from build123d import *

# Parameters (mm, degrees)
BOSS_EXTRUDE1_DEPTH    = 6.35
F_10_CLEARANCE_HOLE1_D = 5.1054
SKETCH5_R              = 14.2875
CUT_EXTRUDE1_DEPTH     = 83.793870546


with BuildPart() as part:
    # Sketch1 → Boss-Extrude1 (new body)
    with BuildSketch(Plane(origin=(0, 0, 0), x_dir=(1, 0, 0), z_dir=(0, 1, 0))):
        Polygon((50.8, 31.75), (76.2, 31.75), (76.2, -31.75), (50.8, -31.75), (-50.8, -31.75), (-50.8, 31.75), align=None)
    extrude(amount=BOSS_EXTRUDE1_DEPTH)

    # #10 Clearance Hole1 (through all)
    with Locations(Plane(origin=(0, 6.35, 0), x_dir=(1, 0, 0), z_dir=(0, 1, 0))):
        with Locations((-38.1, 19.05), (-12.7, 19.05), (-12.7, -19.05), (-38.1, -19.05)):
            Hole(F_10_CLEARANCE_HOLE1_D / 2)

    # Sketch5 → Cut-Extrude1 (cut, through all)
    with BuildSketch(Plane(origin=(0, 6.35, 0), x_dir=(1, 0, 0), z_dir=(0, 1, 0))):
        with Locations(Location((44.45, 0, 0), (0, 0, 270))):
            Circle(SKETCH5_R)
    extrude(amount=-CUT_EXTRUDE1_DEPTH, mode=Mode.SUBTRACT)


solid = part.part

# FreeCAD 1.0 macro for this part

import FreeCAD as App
import Part
import Sketcher

V = App.Vector
Q = App.Units.Quantity

doc = App.newDocument("Part")
body = doc.addObject("PartDesign::Body", "Body")

# Sketch on XZ plane
sketch1 = body.newObject("Sketcher::SketchObject", "Sketch")
sketch1.AttachmentSupport = (doc.getObject("XZ_Plane"), [""])
sketch1.MapMode = "FlatFace"
sketch1.addGeometry(Part.LineSegment(V(76.2, -31.75, 0), V(-50.8, -31.75, 0)), False)
sketch1.addGeometry(Part.LineSegment(V(-50.8, -31.75, 0), V(-50.8, 31.75, 0)), False)
sketch1.addGeometry(Part.LineSegment(V(-50.8, 31.75, 0), V(76.2, 31.75, 0)), False)
sketch1.addGeometry(Part.LineSegment(V(76.2, 31.75, 0), V(76.2, -31.75, 0)), False)
sketch1.addConstraint(Sketcher.Constraint("Coincident", 0, 2, 1, 1))
sketch1.addConstraint(Sketcher.Constraint("Coincident", 1, 2, 2, 1))
sketch1.addConstraint(Sketcher.Constraint("Coincident", 2, 2, 3, 1))
sketch1.addConstraint(Sketcher.Constraint("Coincident", 3, 2, 0, 1))
sketch1.addConstraint(Sketcher.Constraint("Horizontal", 0))
sketch1.addConstraint(Sketcher.Constraint("Vertical", 1))
sketch1.addConstraint(Sketcher.Constraint("Horizontal", 2))
sketch1.addConstraint(Sketcher.Constraint("Vertical", 3))
sketch1.addConstraint(Sketcher.Constraint("DistanceX", 0, 2, 0, 1, Q("5 in")))
sketch1.addConstraint(Sketcher.Constraint("DistanceY", 1, 1, 1, 2, Q("2.5 in")))
sketch1.addConstraint(Sketcher.Constraint("DistanceX", 0, 2, -1, 1, Q("2 in")))
sketch1.addConstraint(Sketcher.Constraint("DistanceY", 0, 2, -1, 1, Q("1.25 in")))
pad1 = body.newObject("PartDesign::Pad", "Pad")
pad1.Profile = sketch1
pad1.Length = Q("0.25 in")
pad1.Reversed = True

# Sketch on XZ plane
sketch2 = body.newObject("Sketcher::SketchObject", "Sketch001")
sketch2.AttachmentSupport = (doc.getObject("XZ_Plane"), [""])
sketch2.MapMode = "FlatFace"
sketch2.AttachmentOffset = App.Placement(V(0, 0, -0.25 * 25.4), App.Rotation())
sketch2.addGeometry(Part.Circle(V(-38.1, -19.05, 0), V(0, 0, 1), 2.5527), False)
sketch2.addGeometry(Part.Circle(V(-12.7, -19.05, 0), V(0, 0, 1), 2.5527), False)
sketch2.addGeometry(Part.Circle(V(-12.7, 19.05, 0), V(0, 0, 1), 2.5527), False)
sketch2.addGeometry(Part.Circle(V(-38.1, 19.05, 0), V(0, 0, 1), 2.5527), False)
sketch2.addConstraint(Sketcher.Constraint("Equal", 0, 1))
sketch2.addConstraint(Sketcher.Constraint("Equal", 1, 2))
sketch2.addConstraint(Sketcher.Constraint("Equal", 2, 3))
sketch2.addConstraint(Sketcher.Constraint("Symmetric", 1, 3, 2, 3, -1))
sketch2.addConstraint(Sketcher.Constraint("Symmetric", 0, 3, 3, 3, -1))
sketch2.addConstraint(Sketcher.Constraint("Horizontal", 0, 3, 1, 3))
sketch2.addConstraint(Sketcher.Constraint("Diameter", 0, Q("0.201 in")))
sketch2.addConstraint(Sketcher.Constraint("DistanceX", 0, 3, 1, 3, Q("1 in")))
sketch2.addConstraint(Sketcher.Constraint("DistanceX", 0, 3, -1, 1, Q("1.5 in")))
sketch2.addConstraint(Sketcher.Constraint("DistanceY", 1, 3, 2, 3, Q("1.5 in")))
doc.recompute()
hole = body.newObject("PartDesign::Hole", "Hole")
hole.Profile = sketch2
hole.ThreadType = "None"
hole.Diameter = Q("0.201 in")
hole.DepthType = "ThroughAll"
hole.Reversed = True

# Sketch on XZ plane
sketch3 = body.newObject("Sketcher::SketchObject", "Sketch002")
sketch3.AttachmentSupport = (doc.getObject("XZ_Plane"), [""])
sketch3.MapMode = "FlatFace"
sketch3.AttachmentOffset = App.Placement(V(0, 0, -0.25 * 25.4), App.Rotation())
sketch3.addGeometry(Part.Circle(V(44.45, 0, 0), V(0, 0, 1), 14.2875), False)
sketch3.addConstraint(Sketcher.Constraint("PointOnObject", 0, 3, -1))
sketch3.addConstraint(Sketcher.Constraint("Diameter", 0, Q("1.125 in")))
sketch3.addConstraint(Sketcher.Constraint("DistanceX", -1, 1, 0, 3, Q("1.75 in")))
pocket1 = body.newObject("PartDesign::Pocket", "Pocket")
pocket1.Profile = sketch3
pocket1.Type = "ThroughAll"
pocket1.Reversed = True

doc.recompute()
